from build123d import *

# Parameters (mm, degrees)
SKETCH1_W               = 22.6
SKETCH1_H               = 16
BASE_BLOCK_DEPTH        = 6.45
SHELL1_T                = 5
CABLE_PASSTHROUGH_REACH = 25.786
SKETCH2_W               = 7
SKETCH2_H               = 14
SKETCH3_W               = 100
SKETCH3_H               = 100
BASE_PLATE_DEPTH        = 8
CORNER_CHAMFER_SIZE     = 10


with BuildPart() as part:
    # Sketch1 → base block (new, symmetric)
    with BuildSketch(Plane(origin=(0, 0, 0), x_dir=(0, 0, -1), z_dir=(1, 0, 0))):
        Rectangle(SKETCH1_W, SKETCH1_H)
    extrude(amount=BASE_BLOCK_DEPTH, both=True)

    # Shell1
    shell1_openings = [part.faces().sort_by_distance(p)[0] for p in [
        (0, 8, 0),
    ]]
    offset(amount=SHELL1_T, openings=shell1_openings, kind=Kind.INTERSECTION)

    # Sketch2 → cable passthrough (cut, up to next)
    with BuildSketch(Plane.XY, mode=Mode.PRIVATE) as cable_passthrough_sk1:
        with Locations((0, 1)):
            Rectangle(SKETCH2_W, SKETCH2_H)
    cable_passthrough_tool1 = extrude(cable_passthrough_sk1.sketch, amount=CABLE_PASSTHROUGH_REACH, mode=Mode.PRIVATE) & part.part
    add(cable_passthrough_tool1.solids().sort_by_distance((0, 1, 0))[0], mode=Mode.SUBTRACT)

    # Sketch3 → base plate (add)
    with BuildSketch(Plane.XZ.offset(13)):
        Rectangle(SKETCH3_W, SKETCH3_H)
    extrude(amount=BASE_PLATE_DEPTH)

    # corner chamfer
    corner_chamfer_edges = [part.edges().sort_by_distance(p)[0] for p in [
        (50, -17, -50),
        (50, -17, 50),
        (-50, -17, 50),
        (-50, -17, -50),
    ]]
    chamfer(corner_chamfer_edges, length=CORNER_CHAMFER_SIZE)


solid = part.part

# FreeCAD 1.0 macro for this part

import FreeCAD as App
import Part
import Sketcher
Q = App.Units.Quantity


def edges_at(feature, points):
    """Names of the edges that pass closest to the given points."""
    edges = feature.Shape.Edges
    near = lambda p: min(range(len(edges)), key=lambda i: edges[i].distToShape(Part.Vertex(*p))[0])
    return sorted({f"Edge{near(p) + 1}" for p in points})


def faces_at(feature, points):
    """Names of the faces that lie closest to the given points."""
    faces = feature.Shape.Faces
    near = lambda p: min(range(len(faces)), key=lambda i: faces[i].distToShape(Part.Vertex(*p))[0])
    return sorted({f"Face{near(p) + 1}" for p in points})

doc = App.newDocument("Part")
body = doc.addObject("PartDesign::Body", "Body")

# Sketch on YZ plane
sketch1 = body.newObject("Sketcher::SketchObject", "Sketch")
sketch1.AttachmentSupport = (doc.getObject("YZ_Plane"), [""])
sketch1.MapMode = "FlatFace"
sketch1.addGeometry([
    Part.LineSegment(App.Vector(8, 11, 0), App.Vector(-8, 11, 0)),
    Part.LineSegment(App.Vector(-8, 11, 0), App.Vector(-8, -11, 0)),
    Part.LineSegment(App.Vector(-8, -11, 0), App.Vector(8, -11, 0)),
    Part.LineSegment(App.Vector(8, -11, 0), App.Vector(8, 11, 0)),
], False)
sketch1.addConstraint([
    Sketcher.Constraint("Coincident", 0, 2, 1, 1),
    Sketcher.Constraint("Coincident", 1, 2, 2, 1),
    Sketcher.Constraint("Coincident", 2, 2, 3, 1),
    Sketcher.Constraint("Coincident", 3, 2, 0, 1),
    Sketcher.Constraint("Horizontal", 0),
    Sketcher.Constraint("Vertical", 1),
    Sketcher.Constraint("Horizontal", 2),
    Sketcher.Constraint("Vertical", 3),
    Sketcher.Constraint("Symmetric", 0, 2, 2, 2, -1, 1),
    Sketcher.Constraint("DistanceX", 0, 2, 0, 1, Q("16 mm")),
    Sketcher.Constraint("DistanceY", 1, 2, 1, 1, Q("22.6 mm")),
])
pad1 = body.newObject("PartDesign::Pad", "Pad")
pad1.Profile = sketch1
pad1.Length = 12.9
pad1.Midplane = True
doc.recompute()

thickness = body.newObject("PartDesign::Thickness", "Thickness")
thickness.Base = (pad1, faces_at(pad1, [(0, 8, 0)]))
thickness.Value = 5
thickness.Reversed = False
thickness.Join = "Intersection"

# Sketch on XY plane
sketch2 = body.newObject("Sketcher::SketchObject", "Sketch001")
sketch2.AttachmentSupport = (doc.getObject("XY_Plane"), [""])
sketch2.MapMode = "FlatFace"
sketch2.addGeometry([
    Part.LineSegment(App.Vector(-4, 8, 0), App.Vector(-4, -6, 0)),
    Part.LineSegment(App.Vector(-4, -6, 0), App.Vector(4, -6, 0)),
    Part.LineSegment(App.Vector(4, -6, 0), App.Vector(4, 8, 0)),
    Part.LineSegment(App.Vector(4, 8, 0), App.Vector(-4, 8, 0)),
], False)
sketch2.addConstraint([
    Sketcher.Constraint("Coincident", 0, 2, 1, 1),
    Sketcher.Constraint("Coincident", 1, 2, 2, 1),
    Sketcher.Constraint("Coincident", 2, 2, 3, 1),
    Sketcher.Constraint("Coincident", 3, 2, 0, 1),
    Sketcher.Constraint("Vertical", 0),
    Sketcher.Constraint("Horizontal", 1),
    Sketcher.Constraint("Vertical", 2),
    Sketcher.Constraint("Horizontal", 3),
    Sketcher.Constraint("DistanceX", 1, 1, 1, 2, Q("7 mm")),
    Sketcher.Constraint("DistanceY", 0, 2, 0, 1, Q("14 mm")),
    Sketcher.Constraint("DistanceY", 0, 2, -1, 1, Q("6 mm")),
    Sketcher.Constraint("DistanceX", 0, 2, -1, 1, Q("3.5 mm")),
])
pocket1 = body.newObject("PartDesign::Pocket", "Pocket")
pocket1.Profile = sketch2
pocket1.Length = 16.3
pocket1.Reversed = True

# Sketch on XZ plane
sketch3 = body.newObject("Sketcher::SketchObject", "Sketch002")
sketch3.AttachmentSupport = (doc.getObject("XZ_Plane"), [""])
sketch3.MapMode = "FlatFace"
sketch3.AttachmentOffset = App.Placement(App.Vector(0, 0, 13), App.Rotation())
sketch3.addGeometry([
    Part.LineSegment(App.Vector(-50, 50, 0), App.Vector(-50, -50, 0)),
    Part.LineSegment(App.Vector(-50, -50, 0), App.Vector(50, -50, 0)),
    Part.LineSegment(App.Vector(50, -50, 0), App.Vector(50, 50, 0)),
    Part.LineSegment(App.Vector(50, 50, 0), App.Vector(-50, 50, 0)),
], False)
sketch3.addConstraint([
    Sketcher.Constraint("Coincident", 0, 2, 1, 1),
    Sketcher.Constraint("Coincident", 1, 2, 2, 1),
    Sketcher.Constraint("Coincident", 2, 2, 3, 1),
    Sketcher.Constraint("Coincident", 3, 2, 0, 1),
    Sketcher.Constraint("Vertical", 0),
    Sketcher.Constraint("Horizontal", 1),
    Sketcher.Constraint("Vertical", 2),
    Sketcher.Constraint("Horizontal", 3),
    Sketcher.Constraint("Symmetric", 0, 2, 2, 2, -1, 1),
    Sketcher.Constraint("Equal", 3, 0),
    Sketcher.Constraint("DistanceX", 1, 1, 1, 2, Q("100 mm")),
])
pad2 = body.newObject("PartDesign::Pad", "Pad001")
pad2.Profile = sketch3
pad2.Length = 8
doc.recompute()

chamfer = body.newObject("PartDesign::Chamfer", "Chamfer")
chamfer.Base = (pad2, edges_at(pad2, [
    (50, -17, -50),
    (50, -17, 50),
    (-50, -17, 50),
    (-50, -17, -50),
]))
chamfer.Size = 10

doc.recompute()
